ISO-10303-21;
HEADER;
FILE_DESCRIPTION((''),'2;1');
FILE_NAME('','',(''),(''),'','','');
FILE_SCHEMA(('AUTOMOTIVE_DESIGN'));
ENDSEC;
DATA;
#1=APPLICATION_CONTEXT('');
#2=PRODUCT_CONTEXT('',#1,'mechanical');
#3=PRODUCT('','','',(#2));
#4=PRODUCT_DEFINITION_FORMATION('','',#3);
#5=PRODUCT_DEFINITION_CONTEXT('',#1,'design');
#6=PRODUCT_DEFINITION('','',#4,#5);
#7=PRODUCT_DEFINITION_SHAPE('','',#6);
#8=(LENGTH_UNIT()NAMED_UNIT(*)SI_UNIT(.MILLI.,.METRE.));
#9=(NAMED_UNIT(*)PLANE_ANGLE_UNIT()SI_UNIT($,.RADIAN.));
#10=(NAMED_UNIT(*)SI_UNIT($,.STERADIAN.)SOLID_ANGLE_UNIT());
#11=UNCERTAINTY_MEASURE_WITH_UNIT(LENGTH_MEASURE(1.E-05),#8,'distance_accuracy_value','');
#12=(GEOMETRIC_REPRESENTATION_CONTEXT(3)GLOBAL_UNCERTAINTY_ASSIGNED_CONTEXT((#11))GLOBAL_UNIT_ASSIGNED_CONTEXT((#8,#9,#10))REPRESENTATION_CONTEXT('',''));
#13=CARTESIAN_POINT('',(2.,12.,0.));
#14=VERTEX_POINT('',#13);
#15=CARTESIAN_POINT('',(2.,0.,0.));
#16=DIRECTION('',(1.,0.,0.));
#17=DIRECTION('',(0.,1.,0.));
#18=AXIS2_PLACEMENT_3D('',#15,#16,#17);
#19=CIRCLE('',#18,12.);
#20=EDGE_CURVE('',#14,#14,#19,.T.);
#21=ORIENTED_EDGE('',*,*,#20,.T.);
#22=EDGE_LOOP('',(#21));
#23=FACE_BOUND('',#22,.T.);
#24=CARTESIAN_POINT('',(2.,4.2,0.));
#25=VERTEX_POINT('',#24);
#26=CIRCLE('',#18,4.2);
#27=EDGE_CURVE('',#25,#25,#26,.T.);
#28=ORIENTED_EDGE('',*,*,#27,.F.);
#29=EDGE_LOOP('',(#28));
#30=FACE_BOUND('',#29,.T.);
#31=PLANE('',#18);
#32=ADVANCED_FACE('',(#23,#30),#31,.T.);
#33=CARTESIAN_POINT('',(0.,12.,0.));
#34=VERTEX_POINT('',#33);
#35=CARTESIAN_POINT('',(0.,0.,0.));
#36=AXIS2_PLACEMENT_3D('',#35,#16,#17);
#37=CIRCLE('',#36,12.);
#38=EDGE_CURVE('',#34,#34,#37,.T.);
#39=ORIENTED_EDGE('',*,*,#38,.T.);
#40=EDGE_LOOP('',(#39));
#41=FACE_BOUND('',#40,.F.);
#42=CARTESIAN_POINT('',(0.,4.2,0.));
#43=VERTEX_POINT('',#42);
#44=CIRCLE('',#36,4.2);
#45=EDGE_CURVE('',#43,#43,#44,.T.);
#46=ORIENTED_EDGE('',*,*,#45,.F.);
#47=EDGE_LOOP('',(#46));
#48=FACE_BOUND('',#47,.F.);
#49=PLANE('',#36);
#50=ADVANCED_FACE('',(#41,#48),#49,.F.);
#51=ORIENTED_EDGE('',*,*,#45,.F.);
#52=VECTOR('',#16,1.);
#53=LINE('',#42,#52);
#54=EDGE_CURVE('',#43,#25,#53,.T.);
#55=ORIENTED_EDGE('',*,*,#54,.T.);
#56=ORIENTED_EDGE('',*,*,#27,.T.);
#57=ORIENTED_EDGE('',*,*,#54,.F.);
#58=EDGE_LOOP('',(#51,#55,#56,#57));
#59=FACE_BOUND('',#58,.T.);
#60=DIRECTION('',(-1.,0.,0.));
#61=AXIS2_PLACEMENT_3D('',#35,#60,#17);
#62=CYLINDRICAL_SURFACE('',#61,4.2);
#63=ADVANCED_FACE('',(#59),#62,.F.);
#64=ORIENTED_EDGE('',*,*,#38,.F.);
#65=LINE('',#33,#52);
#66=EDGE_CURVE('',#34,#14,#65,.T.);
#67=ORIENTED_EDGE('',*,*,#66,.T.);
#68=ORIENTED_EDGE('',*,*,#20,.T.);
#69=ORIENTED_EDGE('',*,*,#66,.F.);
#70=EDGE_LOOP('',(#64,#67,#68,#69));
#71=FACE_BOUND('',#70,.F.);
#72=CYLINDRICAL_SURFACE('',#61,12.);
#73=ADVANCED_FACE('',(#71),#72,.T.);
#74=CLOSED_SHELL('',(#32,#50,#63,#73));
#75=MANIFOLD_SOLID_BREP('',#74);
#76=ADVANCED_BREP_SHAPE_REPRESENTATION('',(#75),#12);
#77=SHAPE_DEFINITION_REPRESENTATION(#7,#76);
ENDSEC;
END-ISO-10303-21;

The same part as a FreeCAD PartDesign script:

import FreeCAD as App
import Part
import Sketcher

V = App.Vector

doc = App.newDocument("Part")
params = doc.addObject("Spreadsheet::Sheet", "Params")
for row, (alias, value) in enumerate([
    ("sketch1_diameter", "24 mm"),
    ("sketch1_diameter2", "8.4 mm"),
    ("pad1_length", "2 mm"),
], start=1):
    params.set(f"A{row}", alias)
    params.set(f"B{row}", "=" + value)
    params.setAlias(f"B{row}", alias)

body = doc.addObject("PartDesign::Body", "Body")

sketch1 = body.newObject("Sketcher::SketchObject", "Sketch")
sketch1.AttachmentSupport = (doc.getObject("YZ_Plane"), [""])
sketch1.MapMode = "FlatFace"
sketch1.addGeometry([
    Part.Circle(V(0, 0, 0), V(0, 0, 1), 12),
    Part.Circle(V(0, 0, 0), V(0, 0, 1), 4.2),
], False)
sketch1.addConstraint([
    Sketcher.Constraint("Coincident", 0, 3, -1, 1),
    Sketcher.Constraint("Coincident", 1, 3, -1, 1),
    Sketcher.Constraint("Diameter", 0, 24.0),
    Sketcher.Constraint("Diameter", 1, 8.4),
])
sketch1.setExpression("Constraints[2]", "Params.sketch1_diameter")
sketch1.setExpression("Constraints[3]", "Params.sketch1_diameter2")
pad1 = body.newObject("PartDesign::Pad", "Pad")
pad1.Profile = sketch1
pad1.setExpression("Length", "Params.pad1_length")

doc.recompute()
